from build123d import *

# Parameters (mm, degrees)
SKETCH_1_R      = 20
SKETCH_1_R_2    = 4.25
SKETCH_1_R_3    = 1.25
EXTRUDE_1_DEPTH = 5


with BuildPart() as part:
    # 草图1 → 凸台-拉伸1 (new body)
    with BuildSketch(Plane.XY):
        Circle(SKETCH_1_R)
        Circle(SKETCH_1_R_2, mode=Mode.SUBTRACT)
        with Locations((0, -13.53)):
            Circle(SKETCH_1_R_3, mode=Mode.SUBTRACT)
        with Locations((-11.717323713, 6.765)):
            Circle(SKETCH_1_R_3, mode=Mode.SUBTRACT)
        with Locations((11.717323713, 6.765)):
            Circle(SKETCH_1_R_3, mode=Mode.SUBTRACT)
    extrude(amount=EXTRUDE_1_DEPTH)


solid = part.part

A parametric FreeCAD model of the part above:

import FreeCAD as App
import Part
import Sketcher

doc = App.newDocument("Part")
body = doc.addObject("PartDesign::Body", "Body")

# Sketch on XY plane
sketch1 = doc.addObject("Sketcher::SketchObject", "Sketch")
body.addObject(sketch1)
sketch1.AttachmentSupport = (doc.XY_Plane, [""])
sketch1.MapMode = "FlatFace"
sketch1.addGeometry([
    Part.Circle(App.Vector(0, 0, 0), App.Vector(0, 0, 1), 20),  # 0
    Part.Circle(App.Vector(0, -13.53, 0), App.Vector(0, 0, 1), 1.25),  # 1
    Part.Circle(App.Vector(0, 0, 0), App.Vector(0, 0, 1), 4.25),  # 2
    Part.Circle(App.Vector(-11.717324, 6.765, 0), App.Vector(0, 0, 1), 1.25),  # 3
    Part.Circle(App.Vector(11.717324, 6.765, 0), App.Vector(0, 0, 1), 1.25),  # 4
], False)
sketch1.addConstraint([
    Sketcher.Constraint("Coincident", 0, 3, -1, 1),
    Sketcher.Constraint("Coincident", 2, 3, -1, 1),
    Sketcher.Constraint("Equal", 1, 3),
    Sketcher.Constraint("Equal", 3, 4),
    Sketcher.Constraint("Symmetric", 3, 3, 4, 3, -2),
    Sketcher.Constraint("PointOnObject", 1, 3, -2),
    Sketcher.Constraint("Diameter", 0, 40.0),
    Sketcher.Constraint("Diameter", 1, 2.5),
    Sketcher.Constraint("Diameter", 2, 8.5),
    Sketcher.Constraint("DistanceY", 1, 3, -1, 1, 13.53),
    Sketcher.Constraint("DistanceY", -1, 1, 3, 3, 6.765),
    Sketcher.Constraint("DistanceX", 3, 3, -1, 1, 11.717324),
])
pad1 = doc.addObject("PartDesign::Pad", "Pad")
body.addObject(pad1)
pad1.Profile = sketch1
pad1.Length = 5

doc.recompute()
